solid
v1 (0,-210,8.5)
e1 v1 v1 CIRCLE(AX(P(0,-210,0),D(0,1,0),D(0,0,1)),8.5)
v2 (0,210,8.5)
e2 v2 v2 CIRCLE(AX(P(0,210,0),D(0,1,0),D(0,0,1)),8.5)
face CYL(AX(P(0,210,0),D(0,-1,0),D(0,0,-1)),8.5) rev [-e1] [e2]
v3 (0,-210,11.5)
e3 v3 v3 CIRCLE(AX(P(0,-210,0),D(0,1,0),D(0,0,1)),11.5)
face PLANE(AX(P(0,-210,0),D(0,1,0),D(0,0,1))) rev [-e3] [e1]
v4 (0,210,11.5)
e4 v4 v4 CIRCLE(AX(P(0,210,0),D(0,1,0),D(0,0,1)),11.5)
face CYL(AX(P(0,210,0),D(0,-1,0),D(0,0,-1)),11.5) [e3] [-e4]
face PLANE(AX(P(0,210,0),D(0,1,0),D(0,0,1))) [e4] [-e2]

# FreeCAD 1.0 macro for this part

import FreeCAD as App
import Part
import Sketcher

doc = App.newDocument("Part")
body = doc.addObject("PartDesign::Body", "Body")

sketch1 = body.newObject("Sketcher::SketchObject", "Sketch")
sketch1.AttachmentSupport = (doc.getObject("XZ_Plane"), [""])
sketch1.MapMode = "FlatFace"
sketch1.addGeometry([
    Part.Circle(App.Vector(0, 0, 0), App.Vector(0, 0, 1), 12),
    Part.Circle(App.Vector(0, 0, 0), App.Vector(0, 0, 1), 8),
], False)
sketch1.addConstraint([
    Sketcher.Constraint("Coincident", 0, 3, -1, 1),
    Sketcher.Constraint("Coincident", 1, 3, -1, 1),
    Sketcher.Constraint("Diameter", 0, 23.0),
    Sketcher.Constraint("Diameter", 1, 17.0),
])
pad1 = body.newObject("PartDesign::Pad", "Pad")
pad1.Profile = sketch1
pad1.Length = 420
pad1.Midplane = True

doc.recompute()
